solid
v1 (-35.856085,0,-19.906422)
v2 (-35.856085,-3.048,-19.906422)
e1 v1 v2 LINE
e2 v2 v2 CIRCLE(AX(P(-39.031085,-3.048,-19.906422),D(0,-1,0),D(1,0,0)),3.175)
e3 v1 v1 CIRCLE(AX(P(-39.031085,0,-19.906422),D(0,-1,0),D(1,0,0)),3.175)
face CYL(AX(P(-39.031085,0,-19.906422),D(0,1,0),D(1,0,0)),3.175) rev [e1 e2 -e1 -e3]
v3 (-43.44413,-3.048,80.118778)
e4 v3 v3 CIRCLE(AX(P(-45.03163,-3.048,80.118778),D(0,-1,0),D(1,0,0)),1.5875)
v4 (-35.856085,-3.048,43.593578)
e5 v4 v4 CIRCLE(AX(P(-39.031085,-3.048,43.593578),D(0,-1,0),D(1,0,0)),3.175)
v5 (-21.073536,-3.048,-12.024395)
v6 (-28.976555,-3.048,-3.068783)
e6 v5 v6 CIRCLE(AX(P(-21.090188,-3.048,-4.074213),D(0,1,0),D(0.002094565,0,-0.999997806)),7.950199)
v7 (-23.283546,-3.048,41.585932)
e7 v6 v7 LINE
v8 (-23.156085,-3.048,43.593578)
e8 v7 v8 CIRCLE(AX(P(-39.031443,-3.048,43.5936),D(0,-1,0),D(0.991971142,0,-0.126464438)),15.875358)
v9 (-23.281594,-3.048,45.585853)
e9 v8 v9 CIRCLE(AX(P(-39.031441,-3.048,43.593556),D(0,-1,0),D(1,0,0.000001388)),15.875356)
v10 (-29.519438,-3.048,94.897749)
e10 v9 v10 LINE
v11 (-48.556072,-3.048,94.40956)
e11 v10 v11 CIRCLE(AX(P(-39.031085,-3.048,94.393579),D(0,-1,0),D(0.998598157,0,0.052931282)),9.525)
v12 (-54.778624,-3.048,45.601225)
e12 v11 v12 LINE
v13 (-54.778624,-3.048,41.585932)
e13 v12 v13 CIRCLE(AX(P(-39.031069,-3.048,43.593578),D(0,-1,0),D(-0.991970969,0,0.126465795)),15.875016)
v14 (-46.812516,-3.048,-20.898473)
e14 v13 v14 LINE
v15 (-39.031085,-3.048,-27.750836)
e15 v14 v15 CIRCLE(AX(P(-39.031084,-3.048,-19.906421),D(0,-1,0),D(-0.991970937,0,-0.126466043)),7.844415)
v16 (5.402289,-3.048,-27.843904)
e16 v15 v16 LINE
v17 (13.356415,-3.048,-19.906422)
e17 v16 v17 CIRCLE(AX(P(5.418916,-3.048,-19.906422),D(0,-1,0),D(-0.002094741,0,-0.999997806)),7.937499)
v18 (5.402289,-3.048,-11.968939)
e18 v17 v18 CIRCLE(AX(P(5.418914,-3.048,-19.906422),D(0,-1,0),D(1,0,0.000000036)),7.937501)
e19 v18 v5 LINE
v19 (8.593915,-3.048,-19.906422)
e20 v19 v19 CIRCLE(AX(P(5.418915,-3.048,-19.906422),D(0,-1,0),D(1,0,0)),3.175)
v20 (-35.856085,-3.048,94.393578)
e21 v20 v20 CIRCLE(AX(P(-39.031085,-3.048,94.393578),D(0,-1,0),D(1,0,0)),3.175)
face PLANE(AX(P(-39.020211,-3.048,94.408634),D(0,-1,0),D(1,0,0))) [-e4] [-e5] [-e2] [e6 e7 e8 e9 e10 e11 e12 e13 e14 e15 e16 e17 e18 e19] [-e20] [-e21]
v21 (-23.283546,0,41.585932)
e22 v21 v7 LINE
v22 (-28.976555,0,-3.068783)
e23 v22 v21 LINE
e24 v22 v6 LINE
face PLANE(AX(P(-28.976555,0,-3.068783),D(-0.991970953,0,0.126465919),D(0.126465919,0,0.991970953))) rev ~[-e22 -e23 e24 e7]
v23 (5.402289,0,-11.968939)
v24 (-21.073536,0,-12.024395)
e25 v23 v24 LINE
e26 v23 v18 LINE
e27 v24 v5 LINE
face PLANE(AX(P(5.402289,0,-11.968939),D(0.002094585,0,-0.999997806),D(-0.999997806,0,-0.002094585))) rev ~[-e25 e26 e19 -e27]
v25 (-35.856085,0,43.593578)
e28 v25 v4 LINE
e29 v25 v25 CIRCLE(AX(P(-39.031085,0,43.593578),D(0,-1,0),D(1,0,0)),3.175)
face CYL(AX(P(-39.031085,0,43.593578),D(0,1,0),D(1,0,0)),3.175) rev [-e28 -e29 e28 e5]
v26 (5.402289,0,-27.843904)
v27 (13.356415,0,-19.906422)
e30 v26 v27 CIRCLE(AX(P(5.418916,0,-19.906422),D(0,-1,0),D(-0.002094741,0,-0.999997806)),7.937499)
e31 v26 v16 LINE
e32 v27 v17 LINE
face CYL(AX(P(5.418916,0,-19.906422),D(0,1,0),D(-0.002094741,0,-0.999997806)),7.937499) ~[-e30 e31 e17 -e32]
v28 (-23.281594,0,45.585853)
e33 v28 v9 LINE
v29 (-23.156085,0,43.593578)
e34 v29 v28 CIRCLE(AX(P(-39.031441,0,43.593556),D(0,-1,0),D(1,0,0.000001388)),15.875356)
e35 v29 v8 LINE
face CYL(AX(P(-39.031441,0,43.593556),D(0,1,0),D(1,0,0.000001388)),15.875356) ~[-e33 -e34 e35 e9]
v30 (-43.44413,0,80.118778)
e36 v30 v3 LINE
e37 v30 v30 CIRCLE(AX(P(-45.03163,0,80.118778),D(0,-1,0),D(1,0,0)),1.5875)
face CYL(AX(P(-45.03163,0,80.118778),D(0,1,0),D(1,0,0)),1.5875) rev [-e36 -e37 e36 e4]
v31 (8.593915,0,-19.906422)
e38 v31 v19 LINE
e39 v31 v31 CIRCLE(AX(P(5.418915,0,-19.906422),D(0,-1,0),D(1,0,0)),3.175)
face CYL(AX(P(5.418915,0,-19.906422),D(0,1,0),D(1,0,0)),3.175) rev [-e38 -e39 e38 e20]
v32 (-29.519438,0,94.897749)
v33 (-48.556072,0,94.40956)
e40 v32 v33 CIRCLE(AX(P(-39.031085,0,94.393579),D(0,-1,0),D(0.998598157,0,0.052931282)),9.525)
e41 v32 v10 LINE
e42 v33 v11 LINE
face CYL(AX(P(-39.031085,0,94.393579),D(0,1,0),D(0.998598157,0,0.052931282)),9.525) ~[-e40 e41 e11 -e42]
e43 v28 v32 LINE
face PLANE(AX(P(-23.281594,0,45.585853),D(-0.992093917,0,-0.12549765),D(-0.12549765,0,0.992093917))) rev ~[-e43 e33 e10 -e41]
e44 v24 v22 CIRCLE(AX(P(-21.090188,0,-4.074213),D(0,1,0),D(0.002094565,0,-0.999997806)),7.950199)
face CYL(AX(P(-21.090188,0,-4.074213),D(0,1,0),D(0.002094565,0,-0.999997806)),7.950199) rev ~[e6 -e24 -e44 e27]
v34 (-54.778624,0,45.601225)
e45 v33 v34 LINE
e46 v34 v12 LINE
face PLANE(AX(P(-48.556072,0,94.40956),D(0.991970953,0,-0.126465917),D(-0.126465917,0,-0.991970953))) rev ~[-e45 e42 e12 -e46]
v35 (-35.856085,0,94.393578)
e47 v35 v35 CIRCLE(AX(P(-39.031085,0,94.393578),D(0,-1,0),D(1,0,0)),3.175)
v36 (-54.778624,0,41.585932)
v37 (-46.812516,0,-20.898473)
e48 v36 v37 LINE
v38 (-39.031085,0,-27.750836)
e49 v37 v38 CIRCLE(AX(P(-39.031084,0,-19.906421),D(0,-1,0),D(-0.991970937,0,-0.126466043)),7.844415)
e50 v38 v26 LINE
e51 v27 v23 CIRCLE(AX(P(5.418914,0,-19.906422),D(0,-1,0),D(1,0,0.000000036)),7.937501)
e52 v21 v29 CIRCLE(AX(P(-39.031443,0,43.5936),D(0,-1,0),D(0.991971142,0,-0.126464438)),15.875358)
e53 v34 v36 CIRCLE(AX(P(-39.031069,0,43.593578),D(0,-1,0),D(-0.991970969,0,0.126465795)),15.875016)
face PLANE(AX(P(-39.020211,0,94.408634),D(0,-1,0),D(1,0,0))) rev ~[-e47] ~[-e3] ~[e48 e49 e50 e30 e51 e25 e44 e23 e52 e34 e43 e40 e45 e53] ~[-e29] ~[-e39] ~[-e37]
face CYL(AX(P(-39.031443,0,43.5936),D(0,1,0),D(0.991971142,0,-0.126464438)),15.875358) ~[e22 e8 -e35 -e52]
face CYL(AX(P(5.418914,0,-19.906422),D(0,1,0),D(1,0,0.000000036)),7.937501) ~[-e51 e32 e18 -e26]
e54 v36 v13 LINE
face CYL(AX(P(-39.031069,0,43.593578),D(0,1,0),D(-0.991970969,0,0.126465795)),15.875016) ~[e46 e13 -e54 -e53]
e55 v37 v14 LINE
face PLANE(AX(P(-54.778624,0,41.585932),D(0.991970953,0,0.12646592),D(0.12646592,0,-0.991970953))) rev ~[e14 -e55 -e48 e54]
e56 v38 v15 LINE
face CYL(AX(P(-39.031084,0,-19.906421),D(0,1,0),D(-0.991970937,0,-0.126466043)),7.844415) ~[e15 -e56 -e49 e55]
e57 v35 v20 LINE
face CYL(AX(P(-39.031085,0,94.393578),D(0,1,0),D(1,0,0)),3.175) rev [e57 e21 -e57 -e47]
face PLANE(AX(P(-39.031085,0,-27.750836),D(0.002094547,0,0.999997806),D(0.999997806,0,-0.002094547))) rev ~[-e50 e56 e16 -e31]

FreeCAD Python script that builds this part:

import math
import FreeCAD as App
import Part
import Sketcher
from FreeCAD import Vector
Q = App.Units.Quantity

doc = App.newDocument("Part")
params = doc.addObject("Spreadsheet::Sheet", "Params")
for row, (alias, value) in enumerate([
    ("sketch1_diameter", "0.25 in"),
    ("sketch1_diameter2", "0.25 in"),
    ("sketch1_diameter3", "0.25 in"),
    ("sketch1_diameter4", "0.25 in"),
    ("sketch1_diameter5", "0.125 in"),
    ("pad1_length", "0.12 in"),
], start=1):
    params.set(f"A{row}", alias)
    params.set(f"B{row}", "=" + value)
    params.setAlias(f"B{row}", alias)

body = doc.addObject("PartDesign::Body", "Body")

# Sketch on XZ plane
sketch1 = body.newObject("Sketcher::SketchObject", "Sketch")
sketch1.AttachmentSupport = (doc.getObject("XZ_Plane"), [""])
sketch1.MapMode = "FlatFace"
sketch1.addGeometry(Part.ArcOfCircle(Part.Circle(Vector(-39.031085, 94.393579, 0), Vector(0, 0, 1), 9.525), math.radians(3.034157), math.radians(179.903867)), False)
sketch1.addGeometry(Part.LineSegment(Vector(-48.556072, 94.40956, 0), Vector(-54.778624, 45.601225, 0)), False)
sketch1.addGeometry(Part.ArcOfCircle(Part.Circle(Vector(-39.031069, 43.593578, 0), Vector(0, 0, 1), 15.875016), math.radians(172.734589), math.radians(187.265411)), False)
sketch1.addGeometry(Part.LineSegment(Vector(-54.778624, 41.585932, 0), Vector(-46.812516, -20.898473, 0)), False)
sketch1.addGeometry(Part.ArcOfCircle(Part.Circle(Vector(-39.031084, -19.906421, 0), Vector(0, 0, 1), 7.844415), math.radians(-172.734574), math.radians(-90.000006)), False)
sketch1.addGeometry(Part.LineSegment(Vector(-39.031085, -27.750836, 0), Vector(5.402289, -27.843904, 0)), False)
sketch1.addGeometry(Part.ArcOfCircle(Part.Circle(Vector(5.418916, -19.906422, 0), Vector(0, 0, 1), 7.937499), math.radians(-90.12002), math.radians(0.000003)), False)
sketch1.addGeometry(Part.ArcOfCircle(Part.Circle(Vector(5.418914, -19.906422, 0), Vector(0, 0, 1), 7.937501), math.radians(0.000002), math.radians(90.120008)), False)
sketch1.addGeometry(Part.LineSegment(Vector(5.402289, -11.968939, 0), Vector(-21.073536, -12.024395, 0)), False)
sketch1.addGeometry(Part.ArcOfCircle(Part.Circle(Vector(-21.090188, -4.074213, 0), Vector(0, 0, 1), 7.950199), math.radians(172.734576), math.radians(270.12001)), False)
sketch1.addGeometry(Part.LineSegment(Vector(-28.976555, -3.068783, 0), Vector(-23.283546, 41.585932, 0)), False)
sketch1.addGeometry(Part.ArcOfCircle(Part.Circle(Vector(-39.031443, 43.5936, 0), Vector(0, 0, 1), 15.875358), math.radians(-7.265333), math.radians(-0.00008)), False)
sketch1.addGeometry(Part.ArcOfCircle(Part.Circle(Vector(-39.031441, 43.593556, 0), Vector(0, 0, 1), 15.875356), math.radians(0.00008), math.radians(7.209412)), False)
sketch1.addGeometry(Part.LineSegment(Vector(-23.281594, 45.585853, 0), Vector(-29.519438, 94.897749, 0)), False)
sketch1.addGeometry(Part.Circle(Vector(-39.031085, -19.906422, 0), Vector(0, 0, 1), 3.175), False)
sketch1.addGeometry(Part.Circle(Vector(5.418915, -19.906422, 0), Vector(0, 0, 1), 3.175), False)
sketch1.addGeometry(Part.Circle(Vector(-39.031085, 43.593578, 0), Vector(0, 0, 1), 3.175), False)
sketch1.addGeometry(Part.Circle(Vector(-45.03163, 80.118778, 0), Vector(0, 0, 1), 1.5875), False)
sketch1.addGeometry(Part.Circle(Vector(-39.031085, 94.393578, 0), Vector(0, 0, 1), 3.175), False)
sketch1.addConstraint(Sketcher.Constraint("Coincident", 0, 2, 1, 1))
sketch1.addConstraint(Sketcher.Constraint("Coincident", 1, 2, 2, 1))
sketch1.addConstraint(Sketcher.Constraint("Coincident", 2, 2, 3, 1))
sketch1.addConstraint(Sketcher.Constraint("Coincident", 3, 2, 4, 1))
sketch1.addConstraint(Sketcher.Constraint("Coincident", 4, 2, 5, 1))
sketch1.addConstraint(Sketcher.Constraint("Coincident", 5, 2, 6, 1))
sketch1.addConstraint(Sketcher.Constraint("Coincident", 6, 2, 7, 1))
sketch1.addConstraint(Sketcher.Constraint("Coincident", 7, 2, 8, 1))
sketch1.addConstraint(Sketcher.Constraint("Coincident", 8, 2, 9, 2))
sketch1.addConstraint(Sketcher.Constraint("Coincident", 9, 1, 10, 1))
sketch1.addConstraint(Sketcher.Constraint("Coincident", 10, 2, 11, 1))
sketch1.addConstraint(Sketcher.Constraint("Coincident", 11, 2, 12, 1))
sketch1.addConstraint(Sketcher.Constraint("Coincident", 12, 2, 13, 1))
sketch1.addConstraint(Sketcher.Constraint("Coincident", 13, 2, 0, 1))
sketch1.addConstraint(Sketcher.Constraint("Coincident", 7, 3, 6, 3))
sketch1.addConstraint(Sketcher.Constraint("Coincident", 14, 3, 4, 3))
sketch1.addConstraint(Sketcher.Constraint("Coincident", 15, 3, 6, 3))
sketch1.addConstraint(Sketcher.Constraint("Coincident", 18, 3, 0, 3))
sketch1.addConstraint(Sketcher.Constraint("Diameter", 14, Q("0.25 in")))
sketch1.addConstraint(Sketcher.Constraint("Diameter", 15, Q("0.25 in")))
sketch1.addConstraint(Sketcher.Constraint("Diameter", 16, Q("0.25 in")))
sketch1.addConstraint(Sketcher.Constraint("Diameter", 18, Q("0.25 in")))
sketch1.addConstraint(Sketcher.Constraint("Diameter", 17, Q("0.125 in")))
sketch1.addConstraint(Sketcher.Constraint("Radius", 0, Q("0.375 in")))
sketch1.addConstraint(Sketcher.Constraint("Radius", 6, Q("0.3125 in")))
sketch1.addConstraint(Sketcher.Constraint("Radius", 9, Q("0.313 in")))
sketch1.addConstraint(Sketcher.Constraint("DistanceY", 2, 3, 0, 3, Q("2 in")))
sketch1.addConstraint(Sketcher.Constraint("DistanceY", 16, 3, 0, 3, Q("2 in")))
sketch1.addConstraint(Sketcher.Constraint("DistanceY", 4, 3, 2, 3, Q("2.5 in")))
sketch1.addConstraint(Sketcher.Constraint("DistanceY", 6, 3, 2, 3, Q("2.5 in")))
sketch1.addConstraint(Sketcher.Constraint("DistanceX", 4, 3, 6, 3, Q("1.75 in")))
sketch1.addConstraint(Sketcher.Constraint("DistanceX", 0, 3, 6, 3, Q("1.7500001 in")))
sketch1.addConstraint(Sketcher.Constraint("DistanceX", 4, 2, 7, 3, Q("1.75 in")))
sketch1.addConstraint(Sketcher.Constraint("DistanceY", 17, 3, 0, 3, Q("0.562 in")))
sketch1.addConstraint(Sketcher.Constraint("DistanceX", 16, 3, 11, 2, Q("0.625 in")))
sketch1.addConstraint(Sketcher.Constraint("Radius", 2, 15.875016))
sketch1.addConstraint(Sketcher.Constraint("Radius", 4, 7.844415))
sketch1.addConstraint(Sketcher.Constraint("Radius", 11, 15.875358))
sketch1.addConstraint(Sketcher.Constraint("Radius", 12, 15.875356))
sketch1.addConstraint(Sketcher.Constraint("DistanceY", -1, 1, 11, 3, 43.5936))
sketch1.addConstraint(Sketcher.Constraint("Distance", 1, 49.203391))
sketch1.addConstraint(Sketcher.Constraint("Distance", 5, 44.433471))
sketch1.addConstraint(Sketcher.Constraint("Distance", 10, 45.016152))
sketch1.addConstraint(Sketcher.Constraint("DistanceY", -1, 1, 0, 3, 94.393579))
sketch1.addConstraint(Sketcher.Constraint("DistanceX", 2, 3, -1, 1, 39.031069))
sketch1.addConstraint(Sketcher.Constraint("DistanceX", 9, 3, -1, 1, 21.090188))
sketch1.addConstraint(Sketcher.Constraint("DistanceX", 12, 3, -1, 1, 39.031441))
sketch1.addConstraint(Sketcher.Constraint("DistanceX", 17, 3, -1, 1, 45.03163))
sketch1.addConstraint(Sketcher.Constraint("DistanceX", 0, 2, -1, 1, 48.556072))
sketch1.addConstraint(Sketcher.Constraint("DistanceY", -1, 1, 0, 2, 94.40956))
sketch1.addConstraint(Sketcher.Constraint("DistanceY", 6, 2, -1, 1, 19.906422))
sketch1.addConstraint(Sketcher.Constraint("DistanceX", -1, 1, 7, 2, 5.402289))
sketch1.addConstraint(Sketcher.Constraint("DistanceX", 13, 2, -1, 1, 29.519438))
sketch1.addConstraint(Sketcher.Constraint("DistanceY", 7, 3, 9, 3, 15.832209))
sketch1.addConstraint(Sketcher.Constraint("DistanceY", 9, 3, 12, 3, 47.667769))
sketch1.addConstraint(Sketcher.Constraint("DistanceX", 2, 2, 11, 3, 15.747181))
sketch1.addConstraint(Sketcher.Constraint("DistanceX", 3, 2, 14, 3, 7.781431))
sketch1.addConstraint(Sketcher.Constraint("DistanceX", 4, 3, 8, 2, 17.957548))
sketch1.addConstraint(Sketcher.Constraint("DistanceY", 9, 3, 9, 1, 1.00543))
sketch1.addConstraint(Sketcher.Constraint("DistanceX", 12, 2, 11, 2, 0.125509))
sketch1.addConstraint(Sketcher.Constraint("DistanceY", -1, 1, 11, 2, 43.593578))
sketch1.setExpression("Constraints[18]", "Params.sketch1_diameter")
sketch1.setExpression("Constraints[19]", "Params.sketch1_diameter2")
sketch1.setExpression("Constraints[20]", "Params.sketch1_diameter3")
sketch1.setExpression("Constraints[21]", "Params.sketch1_diameter4")
sketch1.setExpression("Constraints[22]", "Params.sketch1_diameter5")
pad1 = body.newObject("PartDesign::Pad", "Pad")
pad1.Profile = sketch1
pad1.setExpression("Length", "Params.pad1_length")

doc.recompute()
